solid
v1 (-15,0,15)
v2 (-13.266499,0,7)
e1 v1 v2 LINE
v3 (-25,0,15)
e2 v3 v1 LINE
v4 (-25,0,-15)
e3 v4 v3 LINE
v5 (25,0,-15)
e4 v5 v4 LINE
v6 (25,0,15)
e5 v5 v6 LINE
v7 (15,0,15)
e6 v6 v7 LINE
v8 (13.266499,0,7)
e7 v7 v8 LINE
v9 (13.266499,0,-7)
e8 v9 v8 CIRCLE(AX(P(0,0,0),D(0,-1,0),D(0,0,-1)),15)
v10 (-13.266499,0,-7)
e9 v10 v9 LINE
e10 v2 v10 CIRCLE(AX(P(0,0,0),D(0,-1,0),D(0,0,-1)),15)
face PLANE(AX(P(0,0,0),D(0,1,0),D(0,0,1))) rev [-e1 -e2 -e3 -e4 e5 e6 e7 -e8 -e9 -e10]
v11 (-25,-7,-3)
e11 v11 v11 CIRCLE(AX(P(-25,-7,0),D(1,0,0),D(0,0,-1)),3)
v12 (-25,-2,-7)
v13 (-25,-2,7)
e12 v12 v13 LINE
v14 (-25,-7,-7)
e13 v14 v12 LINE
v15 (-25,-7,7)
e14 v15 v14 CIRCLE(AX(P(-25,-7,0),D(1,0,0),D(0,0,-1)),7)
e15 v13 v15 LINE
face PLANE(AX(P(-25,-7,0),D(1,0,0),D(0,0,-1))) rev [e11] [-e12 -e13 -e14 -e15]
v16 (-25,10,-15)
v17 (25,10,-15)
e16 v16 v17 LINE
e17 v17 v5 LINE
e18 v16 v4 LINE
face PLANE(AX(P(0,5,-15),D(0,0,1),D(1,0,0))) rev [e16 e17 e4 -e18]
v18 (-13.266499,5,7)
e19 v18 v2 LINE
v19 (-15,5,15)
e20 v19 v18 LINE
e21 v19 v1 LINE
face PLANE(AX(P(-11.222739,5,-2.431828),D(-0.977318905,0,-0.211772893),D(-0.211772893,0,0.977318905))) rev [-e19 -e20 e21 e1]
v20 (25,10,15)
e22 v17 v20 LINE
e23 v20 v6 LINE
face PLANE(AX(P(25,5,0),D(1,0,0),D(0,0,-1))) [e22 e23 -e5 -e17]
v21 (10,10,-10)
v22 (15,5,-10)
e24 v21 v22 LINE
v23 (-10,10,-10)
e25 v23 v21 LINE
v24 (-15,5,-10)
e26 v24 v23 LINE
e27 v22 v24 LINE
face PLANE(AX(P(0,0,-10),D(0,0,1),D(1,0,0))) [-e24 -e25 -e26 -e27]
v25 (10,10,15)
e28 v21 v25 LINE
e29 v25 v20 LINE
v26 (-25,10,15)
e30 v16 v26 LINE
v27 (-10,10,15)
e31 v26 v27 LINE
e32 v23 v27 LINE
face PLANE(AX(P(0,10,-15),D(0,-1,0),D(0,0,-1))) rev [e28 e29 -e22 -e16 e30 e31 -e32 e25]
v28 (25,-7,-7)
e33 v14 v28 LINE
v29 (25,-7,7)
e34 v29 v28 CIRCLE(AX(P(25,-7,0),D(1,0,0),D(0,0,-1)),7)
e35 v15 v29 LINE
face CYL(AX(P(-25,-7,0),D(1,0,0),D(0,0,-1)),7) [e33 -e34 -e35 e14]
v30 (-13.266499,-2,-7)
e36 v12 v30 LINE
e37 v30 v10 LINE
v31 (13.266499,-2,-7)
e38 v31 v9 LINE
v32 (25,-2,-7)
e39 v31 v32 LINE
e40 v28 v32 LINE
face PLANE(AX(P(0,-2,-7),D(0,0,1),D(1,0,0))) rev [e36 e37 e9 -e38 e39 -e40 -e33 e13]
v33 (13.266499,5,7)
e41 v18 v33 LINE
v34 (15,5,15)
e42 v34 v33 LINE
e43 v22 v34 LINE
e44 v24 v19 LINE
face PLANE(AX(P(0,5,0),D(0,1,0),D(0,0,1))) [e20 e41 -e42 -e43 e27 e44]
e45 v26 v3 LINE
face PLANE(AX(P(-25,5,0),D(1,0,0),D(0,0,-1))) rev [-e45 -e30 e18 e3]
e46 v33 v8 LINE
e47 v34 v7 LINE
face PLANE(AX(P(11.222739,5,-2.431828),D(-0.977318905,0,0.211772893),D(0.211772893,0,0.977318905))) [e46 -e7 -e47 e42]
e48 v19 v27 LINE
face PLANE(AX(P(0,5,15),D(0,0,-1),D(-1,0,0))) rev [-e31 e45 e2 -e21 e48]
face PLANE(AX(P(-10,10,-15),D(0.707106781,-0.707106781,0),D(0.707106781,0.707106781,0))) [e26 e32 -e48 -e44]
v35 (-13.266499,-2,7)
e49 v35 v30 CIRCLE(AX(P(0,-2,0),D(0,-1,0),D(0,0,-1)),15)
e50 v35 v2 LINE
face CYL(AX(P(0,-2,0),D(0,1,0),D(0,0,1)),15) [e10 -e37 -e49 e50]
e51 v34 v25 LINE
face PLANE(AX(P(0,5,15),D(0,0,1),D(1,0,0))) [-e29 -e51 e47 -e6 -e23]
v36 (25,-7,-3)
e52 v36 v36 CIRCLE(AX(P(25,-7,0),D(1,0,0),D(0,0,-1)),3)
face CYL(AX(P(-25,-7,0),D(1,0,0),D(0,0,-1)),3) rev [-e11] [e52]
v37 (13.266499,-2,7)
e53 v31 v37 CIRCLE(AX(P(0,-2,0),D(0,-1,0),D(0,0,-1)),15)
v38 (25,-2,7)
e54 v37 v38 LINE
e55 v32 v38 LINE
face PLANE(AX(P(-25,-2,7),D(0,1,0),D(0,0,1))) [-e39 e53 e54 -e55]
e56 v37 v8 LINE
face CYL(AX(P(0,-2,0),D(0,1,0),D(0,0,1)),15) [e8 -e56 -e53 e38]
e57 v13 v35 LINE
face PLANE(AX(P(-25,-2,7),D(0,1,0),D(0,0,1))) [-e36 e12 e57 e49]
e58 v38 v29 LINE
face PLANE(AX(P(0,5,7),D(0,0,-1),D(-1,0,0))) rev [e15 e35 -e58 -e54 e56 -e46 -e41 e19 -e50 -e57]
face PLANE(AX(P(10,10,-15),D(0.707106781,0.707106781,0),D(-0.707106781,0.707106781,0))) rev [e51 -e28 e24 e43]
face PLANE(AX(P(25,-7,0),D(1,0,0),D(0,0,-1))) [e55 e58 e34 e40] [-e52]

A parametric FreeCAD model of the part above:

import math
import FreeCAD as App
import Part
import Sketcher

V = App.Vector

doc = App.newDocument("Part")
body = doc.addObject("PartDesign::Body", "Body")

# Sketch on XZ plane
sketch1 = body.newObject("Sketcher::SketchObject", "Sketch")
sketch1.AttachmentSupport = (doc.getObject("XZ_Plane"), [""])
sketch1.MapMode = "FlatFace"
sketch1.addGeometry([
    Part.LineSegment(V(-25, -15, 0), V(-25, 15, 0)),  # 0
    Part.LineSegment(V(-25, 15, 0), V(-15, 15, 0)),  # 1
    Part.LineSegment(V(-15, 15, 0), V(-13, 7, 0)),  # 2
    Part.LineSegment(V(-13, 7, 0), V(13, 7, 0)),  # 3
    Part.LineSegment(V(13, 7, 0), V(15, 15, 0)),  # 4
    Part.LineSegment(V(15, 15, 0), V(25, 15, 0)),  # 5
    Part.LineSegment(V(25, 15, 0), V(25, -15, 0)),  # 6
    Part.LineSegment(V(25, -15, 0), V(-25, -15, 0)),  # 7
], False)
sketch1.addConstraint([
    Sketcher.Constraint("Coincident", 0, 2, 1, 1),
    Sketcher.Constraint("Coincident", 1, 2, 2, 1),
    Sketcher.Constraint("Coincident", 2, 2, 3, 1),
    Sketcher.Constraint("Coincident", 3, 2, 4, 1),
    Sketcher.Constraint("Coincident", 4, 2, 5, 1),
    Sketcher.Constraint("Coincident", 5, 2, 6, 1),
    Sketcher.Constraint("Coincident", 6, 2, 7, 1),
    Sketcher.Constraint("Coincident", 7, 2, 0, 1),
    Sketcher.Constraint("Vertical", 0),
    Sketcher.Constraint("Horizontal", 1),
    Sketcher.Constraint("Horizontal", 3),
    Sketcher.Constraint("Horizontal", 5),
    Sketcher.Constraint("Vertical", 6),
    Sketcher.Constraint("Horizontal", 7),
    Sketcher.Constraint("Symmetric", 0, 2, 6, 2, -1, 1),
    Sketcher.Constraint("Symmetric", 1, 2, 4, 2, -2),
    Sketcher.Constraint("Equal", 2, 4),
    Sketcher.Constraint("DistanceX", 1, 1, 1, 2, 10.0),
    Sketcher.Constraint("DistanceX", 7, 2, 7, 1, 50.0),
    Sketcher.Constraint("DistanceY", 0, 1, 0, 2, 30.0),
    Sketcher.Constraint("DistanceY", -1, 1, 2, 2, 7.0),
    Sketcher.Constraint("DistanceX", 3, 1, 3, 2, 26.532998),
])
pad1 = body.newObject("PartDesign::Pad", "Pad")
pad1.Profile = sketch1
pad1.Length = 5
pad1.Reversed = True

# Sketch on XZ plane
sketch2 = body.newObject("Sketcher::SketchObject", "Sketch001")
sketch2.AttachmentSupport = (doc.getObject("XZ_Plane"), [""])
sketch2.MapMode = "FlatFace"
sketch2.addGeometry([
    Part.LineSegment(V(13, 7, 0), V(-13, 7, 0)),  # 0
    Part.ArcOfCircle(Part.Circle(V(0, 0, 0), V(0, 0, 1), 15), math.radians(152), math.radians(208)),  # 1
    Part.LineSegment(V(-13, -7, 0), V(13, -7, 0)),  # 2
    Part.ArcOfCircle(Part.Circle(V(0, 0, 0), V(0, 0, 1), 15), math.radians(-28), math.radians(0)),  # 3
    Part.ArcOfCircle(Part.Circle(V(0, 0, 0), V(0, 0, 1), 15), math.radians(0), math.radians(28)),  # 4
], False)
sketch2.addConstraint([
    Sketcher.Constraint("Coincident", 0, 2, 1, 1),
    Sketcher.Constraint("Coincident", 1, 2, 2, 1),
    Sketcher.Constraint("Coincident", 2, 2, 3, 1),
    Sketcher.Constraint("Tangent", 3, 2, 4, 1),
    Sketcher.Constraint("Coincident", 4, 2, 0, 1),
    Sketcher.Constraint("Horizontal", 0),
    Sketcher.Constraint("Horizontal", 2),
    Sketcher.Constraint("Coincident", 1, 3, -1, 1),
    Sketcher.Constraint("Coincident", 3, 3, -1, 1),
    Sketcher.Constraint("Equal", 1, 3),
    Sketcher.Constraint("Equal", 3, 4),
    Sketcher.Constraint("PointOnObject", 3, 2, -1),
    Sketcher.Constraint("Vertical", 0, 2, 1, 2),
    Sketcher.Constraint("Radius", 1, 15.0),
    Sketcher.Constraint("DistanceY", -1, 1, 0, 2, 7.0),
])
pad2 = body.newObject("PartDesign::Pad", "Pad001")
pad2.Profile = sketch2
pad2.Length = 2

# Sketch on XY plane
sketch3 = body.newObject("Sketcher::SketchObject", "Sketch002")
sketch3.AttachmentSupport = (doc.getObject("XY_Plane"), [""])
sketch3.MapMode = "FlatFace"
sketch3.AttachmentOffset = App.Placement(V(0, 0, 15), App.Rotation())
sketch3.addGeometry([
    Part.LineSegment(V(-15, 5, 0), V(-10, 10, 0)),  # 0
    Part.LineSegment(V(-10, 10, 0), V(-25, 10, 0)),  # 1
    Part.LineSegment(V(-25, 10, 0), V(-25, 5, 0)),  # 2
    Part.LineSegment(V(-25, 5, 0), V(-15, 5, 0)),  # 3
    Part.LineSegment(V(10, 10, 0), V(15, 5, 0)),  # 4
    Part.LineSegment(V(15, 5, 0), V(25, 5, 0)),  # 5
    Part.LineSegment(V(25, 5, 0), V(25, 10, 0)),  # 6
    Part.LineSegment(V(25, 10, 0), V(10, 10, 0)),  # 7
], False)
sketch3.addConstraint([
    Sketcher.Constraint("Coincident", 0, 2, 1, 1),
    Sketcher.Constraint("Coincident", 1, 2, 2, 1),
    Sketcher.Constraint("Coincident", 2, 2, 3, 1),
    Sketcher.Constraint("Coincident", 3, 2, 0, 1),
    Sketcher.Constraint("Coincident", 4, 2, 5, 1),
    Sketcher.Constraint("Coincident", 5, 2, 6, 1),
    Sketcher.Constraint("Coincident", 6, 2, 7, 1),
    Sketcher.Constraint("Coincident", 7, 2, 4, 1),
    Sketcher.Constraint("Horizontal", 1),
    Sketcher.Constraint("Vertical", 2),
    Sketcher.Constraint("Horizontal", 3),
    Sketcher.Constraint("Horizontal", 5),
    Sketcher.Constraint("Vertical", 6),
    Sketcher.Constraint("Horizontal", 7),
    Sketcher.Constraint("Symmetric", 3, 2, 4, 2, -2),
    Sketcher.Constraint("Symmetric", 1, 2, 6, 2, -2),
    Sketcher.Constraint("Perpendicular", 0, 4),
    Sketcher.Constraint("Equal", 1, 7),
    Sketcher.Constraint("DistanceX", 1, 2, 1, 1, 15.0),
    Sketcher.Constraint("DistanceX", 3, 1, 3, 2, 10.0),
    Sketcher.Constraint("DistanceX", 0, 2, -1, 1, 10.0),
    Sketcher.Constraint("DistanceY", -1, 1, 0, 2, 10.0),
])
pad3 = body.newObject("PartDesign::Pad", "Pad002")
pad3.Profile = sketch3
pad3.Length = 30
pad3.Reversed = True

# Sketch on YZ plane
sketch4 = body.newObject("Sketcher::SketchObject", "Sketch003")
sketch4.AttachmentSupport = (doc.getObject("YZ_Plane"), [""])
sketch4.MapMode = "FlatFace"
sketch4.AttachmentOffset = App.Placement(V(0, 0, 25), App.Rotation())
sketch4.addGeometry([
    Part.LineSegment(V(-2, 7, 0), V(-7, 7, 0)),  # 0
    Part.ArcOfCircle(Part.Circle(V(-7, 0, 0), V(0, 0, 1), 7), math.radians(90), math.radians(270)),  # 1
    Part.LineSegment(V(-7, -7, 0), V(-2, -7, 0)),  # 2
    Part.LineSegment(V(-2, -7, 0), V(-2, 7, 0)),  # 3
    Part.Circle(V(-7, 0, 0), V(0, 0, 1), 3),  # 4
], False)
sketch4.addConstraint([
    Sketcher.Constraint("Tangent", 0, 2, 1, 1),
    Sketcher.Constraint("Tangent", 1, 2, 2, 1),
    Sketcher.Constraint("Coincident", 2, 2, 3, 1),
    Sketcher.Constraint("Coincident", 3, 2, 0, 1),
    Sketcher.Constraint("Horizontal", 0),
    Sketcher.Constraint("Horizontal", 2),
    Sketcher.Constraint("Vertical", 3),
    Sketcher.Constraint("Coincident", 4, 3, 1, 3),
    Sketcher.Constraint("PointOnObject", 1, 3, -1),
    Sketcher.Constraint("Diameter", 4, 6.0),
    Sketcher.Constraint("Radius", 1, 7.0),
    Sketcher.Constraint("DistanceX", 0, 2, 0, 1, 5.0),
    Sketcher.Constraint("DistanceX", 1, 3, -1, 1, 7.0),
])
pad4 = body.newObject("PartDesign::Pad", "Pad003")
pad4.Profile = sketch4
pad4.Length = 50
pad4.Reversed = True

# Sketch on XY plane
sketch5 = body.newObject("Sketcher::SketchObject", "Sketch004")
sketch5.AttachmentSupport = (doc.getObject("XY_Plane"), [""])
sketch5.MapMode = "FlatFace"
sketch5.AttachmentOffset = App.Placement(V(0, 0, -15), App.Rotation())
sketch5.addGeometry([
    Part.LineSegment(V(15, 5, 0), V(-15, 5, 0)),
    Part.LineSegment(V(-15, 5, 0), V(-10, 10, 0)),
    Part.LineSegment(V(-10, 10, 0), V(10, 10, 0)),
    Part.LineSegment(V(10, 10, 0), V(15, 5, 0)),
], False)
sketch5.addConstraint([
    Sketcher.Constraint("Coincident", 0, 2, 1, 1),
    Sketcher.Constraint("Coincident", 1, 2, 2, 1),
    Sketcher.Constraint("Coincident", 2, 2, 3, 1),
    Sketcher.Constraint("Coincident", 3, 2, 0, 1),
    Sketcher.Constraint("Horizontal", 0),
    Sketcher.Constraint("Horizontal", 2),
    Sketcher.Constraint("Perpendicular", 1, 3),
    Sketcher.Constraint("Equal", 1, 3),
    Sketcher.Constraint("DistanceX", 0, 2, 0, 1, 30.0),
    Sketcher.Constraint("DistanceX", 2, 1, 2, 2, 20.0),
    Sketcher.Constraint("DistanceX", 0, 2, -1, 1, 15.0),
    Sketcher.Constraint("DistanceY", -1, 1, 0, 2, 5.0),
])
pad5 = body.newObject("PartDesign::Pad", "Pad004")
pad5.Profile = sketch5
pad5.Length = 5

doc.recompute()
